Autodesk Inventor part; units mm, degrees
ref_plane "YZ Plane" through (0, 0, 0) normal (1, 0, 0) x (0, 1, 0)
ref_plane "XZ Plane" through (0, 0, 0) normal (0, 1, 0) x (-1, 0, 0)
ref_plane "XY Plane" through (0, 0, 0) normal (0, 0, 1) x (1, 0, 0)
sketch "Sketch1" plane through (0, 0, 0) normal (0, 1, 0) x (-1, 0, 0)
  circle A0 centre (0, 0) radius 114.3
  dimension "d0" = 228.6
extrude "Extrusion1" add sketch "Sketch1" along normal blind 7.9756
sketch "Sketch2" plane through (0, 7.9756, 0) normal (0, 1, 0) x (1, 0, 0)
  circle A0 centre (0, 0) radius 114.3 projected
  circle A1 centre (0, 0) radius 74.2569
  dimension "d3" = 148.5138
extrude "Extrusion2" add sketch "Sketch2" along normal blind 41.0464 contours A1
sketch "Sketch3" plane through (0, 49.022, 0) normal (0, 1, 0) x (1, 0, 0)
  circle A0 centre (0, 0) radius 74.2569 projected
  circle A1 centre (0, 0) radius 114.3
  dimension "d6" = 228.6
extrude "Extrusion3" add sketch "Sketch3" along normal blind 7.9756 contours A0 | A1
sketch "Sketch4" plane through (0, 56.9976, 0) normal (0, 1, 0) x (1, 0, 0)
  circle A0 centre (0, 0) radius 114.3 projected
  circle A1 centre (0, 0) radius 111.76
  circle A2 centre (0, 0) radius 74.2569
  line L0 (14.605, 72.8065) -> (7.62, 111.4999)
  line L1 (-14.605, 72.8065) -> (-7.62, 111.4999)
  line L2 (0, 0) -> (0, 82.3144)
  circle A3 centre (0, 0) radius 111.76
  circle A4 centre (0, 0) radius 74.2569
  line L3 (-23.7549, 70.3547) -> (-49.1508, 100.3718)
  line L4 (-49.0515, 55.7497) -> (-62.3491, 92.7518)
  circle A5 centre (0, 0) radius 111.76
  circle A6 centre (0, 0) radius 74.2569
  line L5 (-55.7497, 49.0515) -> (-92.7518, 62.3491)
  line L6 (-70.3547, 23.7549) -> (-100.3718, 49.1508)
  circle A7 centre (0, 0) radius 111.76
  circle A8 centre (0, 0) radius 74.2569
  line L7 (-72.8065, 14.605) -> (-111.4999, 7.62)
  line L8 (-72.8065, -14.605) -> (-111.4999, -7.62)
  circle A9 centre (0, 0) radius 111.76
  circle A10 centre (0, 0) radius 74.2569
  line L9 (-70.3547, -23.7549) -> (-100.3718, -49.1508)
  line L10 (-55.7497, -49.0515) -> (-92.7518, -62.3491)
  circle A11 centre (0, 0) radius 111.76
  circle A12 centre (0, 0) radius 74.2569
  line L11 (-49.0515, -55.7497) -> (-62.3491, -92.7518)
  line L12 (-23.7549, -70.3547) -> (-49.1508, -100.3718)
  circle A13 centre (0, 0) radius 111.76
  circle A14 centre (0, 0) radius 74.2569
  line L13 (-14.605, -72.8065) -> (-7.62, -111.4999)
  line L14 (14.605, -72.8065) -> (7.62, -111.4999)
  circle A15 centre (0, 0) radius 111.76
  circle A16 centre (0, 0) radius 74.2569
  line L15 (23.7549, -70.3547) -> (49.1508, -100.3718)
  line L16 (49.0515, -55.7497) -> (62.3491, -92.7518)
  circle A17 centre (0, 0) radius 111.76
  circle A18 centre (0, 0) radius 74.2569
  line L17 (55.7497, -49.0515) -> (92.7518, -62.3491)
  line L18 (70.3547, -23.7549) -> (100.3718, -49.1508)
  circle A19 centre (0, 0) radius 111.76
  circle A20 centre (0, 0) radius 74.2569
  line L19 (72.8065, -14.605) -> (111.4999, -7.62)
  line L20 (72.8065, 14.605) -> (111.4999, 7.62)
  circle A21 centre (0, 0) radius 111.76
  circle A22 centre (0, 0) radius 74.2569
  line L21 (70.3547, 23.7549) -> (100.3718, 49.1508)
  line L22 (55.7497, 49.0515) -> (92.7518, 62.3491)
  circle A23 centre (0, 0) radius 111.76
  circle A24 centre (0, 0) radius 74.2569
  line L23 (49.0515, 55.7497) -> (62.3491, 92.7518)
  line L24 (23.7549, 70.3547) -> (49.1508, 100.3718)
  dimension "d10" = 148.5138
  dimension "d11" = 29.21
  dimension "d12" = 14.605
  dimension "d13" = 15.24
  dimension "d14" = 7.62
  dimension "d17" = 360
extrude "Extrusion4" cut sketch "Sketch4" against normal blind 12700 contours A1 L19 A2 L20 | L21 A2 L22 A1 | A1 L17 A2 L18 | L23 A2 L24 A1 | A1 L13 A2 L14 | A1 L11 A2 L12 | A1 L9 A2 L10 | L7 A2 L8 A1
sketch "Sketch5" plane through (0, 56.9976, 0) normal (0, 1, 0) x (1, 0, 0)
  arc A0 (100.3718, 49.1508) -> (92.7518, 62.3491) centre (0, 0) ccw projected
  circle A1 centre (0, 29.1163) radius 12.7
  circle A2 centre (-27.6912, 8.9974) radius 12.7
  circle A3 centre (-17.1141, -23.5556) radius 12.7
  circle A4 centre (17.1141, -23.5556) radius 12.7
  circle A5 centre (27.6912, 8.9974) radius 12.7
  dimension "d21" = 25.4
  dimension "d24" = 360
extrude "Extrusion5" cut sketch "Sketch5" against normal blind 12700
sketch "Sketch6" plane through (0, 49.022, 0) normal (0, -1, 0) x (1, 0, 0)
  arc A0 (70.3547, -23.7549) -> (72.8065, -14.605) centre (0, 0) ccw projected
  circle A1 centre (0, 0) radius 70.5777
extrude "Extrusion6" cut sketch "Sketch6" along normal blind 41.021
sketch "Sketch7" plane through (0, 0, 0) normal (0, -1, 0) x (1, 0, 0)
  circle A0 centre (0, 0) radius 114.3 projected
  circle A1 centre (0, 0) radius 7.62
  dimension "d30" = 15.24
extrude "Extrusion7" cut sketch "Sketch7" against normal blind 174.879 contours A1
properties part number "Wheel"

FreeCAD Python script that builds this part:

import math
import FreeCAD as App
import Part
import Sketcher

V = App.Vector
Q = App.Units.Quantity

doc = App.newDocument("Part")
body = doc.addObject("PartDesign::Body", "Body")

sketch1 = body.newObject("Sketcher::SketchObject", "Sketch")
sketch1.AttachmentSupport = (doc.getObject("XZ_Plane"), [""])
sketch1.MapMode = "FlatFace"
sketch1.addGeometry(Part.Circle(V(0, 0, 0), V(0, 0, 1), 114), False)
sketch1.addConstraint([
    Sketcher.Constraint("Coincident", 0, 3, -1, 1),
    Sketcher.Constraint("Diameter", 0, Q("9 in")),
])
pad1 = body.newObject("PartDesign::Pad", "Pad")
pad1.Profile = sketch1
pad1.Length = Q("0.314 in")
pad1.Reversed = True

sketch2 = body.newObject("Sketcher::SketchObject", "Sketch001")
sketch2.AttachmentSupport = (doc.getObject("XZ_Plane"), [""])
sketch2.MapMode = "FlatFace"
sketch2.AttachmentOffset = App.Placement(V(0, 0, -0.314 * 25.4), App.Rotation())
sketch2.addGeometry(Part.Circle(V(0, 0, 0), V(0, 0, 1), 74), False)
sketch2.addConstraint([
    Sketcher.Constraint("Coincident", 0, 3, -1, 1),
    Sketcher.Constraint("Diameter", 0, Q("5.847 in")),
])
pad2 = body.newObject("PartDesign::Pad", "Pad001")
pad2.Profile = sketch2
pad2.Length = Q("1.616 in")
pad2.Reversed = True

sketch3 = body.newObject("Sketcher::SketchObject", "Sketch002")
sketch3.AttachmentSupport = (doc.getObject("XZ_Plane"), [""])
sketch3.MapMode = "FlatFace"
sketch3.AttachmentOffset = App.Placement(V(0, 0, -1.93 * 25.4), App.Rotation())
sketch3.addGeometry(Part.Circle(V(0, 0, 0), V(0, 0, 1), 114), False)
sketch3.addConstraint([
    Sketcher.Constraint("Coincident", 0, 3, -1, 1),
    Sketcher.Constraint("Diameter", 0, Q("9 in")),
])
pad3 = body.newObject("PartDesign::Pad", "Pad002")
pad3.Profile = sketch3
pad3.Length = Q("0.314 in")
pad3.Reversed = True

sketch4 = body.newObject("Sketcher::SketchObject", "Sketch003")
sketch4.AttachmentSupport = (doc.getObject("XZ_Plane"), [""])
sketch4.MapMode = "FlatFace"
sketch4.AttachmentOffset = App.Placement(V(0, 0, -2.244 * 25.4), App.Rotation())
sketch4.addGeometry([
    Part.ArcOfCircle(Part.Circle(V(0, 0, 0), V(0, 0, 1), 112), math.radians(-3.91), math.radians(3.91)),
    Part.LineSegment(V(111, -8, 0), V(73, -15, 0)),
    Part.ArcOfCircle(Part.Circle(V(0, 0, 0), V(0, 0, 1), 74), math.radians(-11), math.radians(11)),
    Part.LineSegment(V(73, 15, 0), V(111, 8, 0)),
    Part.LineSegment(V(70, -24, 0), V(100, -49, 0)),
    Part.ArcOfCircle(Part.Circle(V(0, 0, 0), V(0, 0, 1), 112), math.radians(-33.91), math.radians(-26.09)),
    Part.LineSegment(V(93, -62, 0), V(56, -49, 0)),
    Part.ArcOfCircle(Part.Circle(V(0, 0, 0), V(0, 0, 1), 74), math.radians(-41), math.radians(-19)),
    Part.ArcOfCircle(Part.Circle(V(0, 0, 0), V(0, 0, 1), 112), math.radians(26.09), math.radians(33.91)),
    Part.LineSegment(V(100, 49, 0), V(70, 24, 0)),
    Part.ArcOfCircle(Part.Circle(V(0, 0, 0), V(0, 0, 1), 74), math.radians(19), math.radians(41)),
    Part.LineSegment(V(56, 49, 0), V(93, 62, 0)),
    Part.LineSegment(V(49, -56, 0), V(62, -93, 0)),
    Part.ArcOfCircle(Part.Circle(V(0, 0, 0), V(0, 0, 1), 112), math.radians(-63.91), math.radians(-56.09)),
    Part.LineSegment(V(49, -100, 0), V(24, -70, 0)),
    Part.ArcOfCircle(Part.Circle(V(0, 0, 0), V(0, 0, 1), 74), math.radians(-71), math.radians(-49)),
    Part.ArcOfCircle(Part.Circle(V(0, 0, 0), V(0, 0, 1), 112), math.radians(86.09), math.radians(93.91)),
    Part.LineSegment(V(8, 111, 0), V(15, 73, 0)),
    Part.ArcOfCircle(Part.Circle(V(0, 0, 0), V(0, 0, 1), 74), math.radians(79), math.radians(101)),
    Part.LineSegment(V(-15, 73, 0), V(-8, 111, 0)),
    Part.ArcOfCircle(Part.Circle(V(0, 0, 0), V(0, 0, 1), 112), math.radians(116.09), math.radians(123.91)),
    Part.LineSegment(V(-49, 100, 0), V(-24, 70, 0)),
    Part.ArcOfCircle(Part.Circle(V(0, 0, 0), V(0, 0, 1), 74), math.radians(109), math.radians(131)),
    Part.LineSegment(V(-49, 56, 0), V(-62, 93, 0)),
    Part.ArcOfCircle(Part.Circle(V(0, 0, 0), V(0, 0, 1), 112), math.radians(146.09), math.radians(153.91)),
    Part.LineSegment(V(-93, 62, 0), V(-56, 49, 0)),
    Part.ArcOfCircle(Part.Circle(V(0, 0, 0), V(0, 0, 1), 74), math.radians(139), math.radians(161)),
    Part.LineSegment(V(-70, 24, 0), V(-100, 49, 0)),
    Part.LineSegment(V(-73, -15, 0), V(-111, -8, 0)),
    Part.ArcOfCircle(Part.Circle(V(0, 0, 0), V(0, 0, 1), 112), math.radians(176.09), math.radians(183.91)),
    Part.LineSegment(V(-111, 8, 0), V(-73, 15, 0)),
    Part.ArcOfCircle(Part.Circle(V(0, 0, 0), V(0, 0, 1), 74), math.radians(169), math.radians(191)),
], False)
sketch4.addConstraint([
    Sketcher.Constraint("Coincident", 0, 1, 1, 1),
    Sketcher.Constraint("Coincident", 1, 2, 2, 1),
    Sketcher.Constraint("Coincident", 2, 2, 3, 1),
    Sketcher.Constraint("Coincident", 3, 2, 0, 2),
    Sketcher.Constraint("Coincident", 4, 2, 5, 2),
    Sketcher.Constraint("Coincident", 5, 1, 6, 1),
    Sketcher.Constraint("Coincident", 6, 2, 7, 1),
    Sketcher.Constraint("Coincident", 7, 2, 4, 1),
    Sketcher.Constraint("Coincident", 8, 1, 9, 1),
    Sketcher.Constraint("Coincident", 9, 2, 10, 1),
    Sketcher.Constraint("Coincident", 10, 2, 11, 1),
    Sketcher.Constraint("Coincident", 11, 2, 8, 2),
    Sketcher.Constraint("Coincident", 12, 2, 13, 2),
    Sketcher.Constraint("Coincident", 13, 1, 14, 1),
    Sketcher.Constraint("Coincident", 14, 2, 15, 1),
    Sketcher.Constraint("Coincident", 15, 2, 12, 1),
    Sketcher.Constraint("Coincident", 16, 1, 17, 1),
    Sketcher.Constraint("Coincident", 17, 2, 18, 1),
    Sketcher.Constraint("Coincident", 18, 2, 19, 1),
    Sketcher.Constraint("Coincident", 19, 2, 16, 2),
    Sketcher.Constraint("Coincident", 20, 1, 21, 1),
    Sketcher.Constraint("Coincident", 21, 2, 22, 1),
    Sketcher.Constraint("Coincident", 22, 2, 23, 1),
    Sketcher.Constraint("Coincident", 23, 2, 20, 2),
    Sketcher.Constraint("Coincident", 24, 1, 25, 1),
    Sketcher.Constraint("Coincident", 25, 2, 26, 1),
    Sketcher.Constraint("Coincident", 26, 2, 27, 1),
    Sketcher.Constraint("Coincident", 27, 2, 24, 2),
    Sketcher.Constraint("Coincident", 28, 2, 29, 2),
    Sketcher.Constraint("Coincident", 29, 1, 30, 1),
    Sketcher.Constraint("Coincident", 30, 2, 31, 1),
    Sketcher.Constraint("Coincident", 31, 2, 28, 1),
    Sketcher.Constraint("Coincident", 0, 3, -1, 1),
    Sketcher.Constraint("Coincident", 2, 3, -1, 1),
    Sketcher.Constraint("Coincident", 5, 3, -1, 1),
    Sketcher.Constraint("Coincident", 7, 3, -1, 1),
    Sketcher.Constraint("Coincident", 8, 3, -1, 1),
    Sketcher.Constraint("Coincident", 10, 3, -1, 1),
    Sketcher.Constraint("Coincident", 13, 3, -1, 1),
    Sketcher.Constraint("Coincident", 15, 3, -1, 1),
    Sketcher.Constraint("Coincident", 16, 3, -1, 1),
    Sketcher.Constraint("Coincident", 18, 3, -1, 1),
    Sketcher.Constraint("Coincident", 20, 3, -1, 1),
    Sketcher.Constraint("Coincident", 22, 3, -1, 1),
    Sketcher.Constraint("Coincident", 24, 3, -1, 1),
    Sketcher.Constraint("Coincident", 26, 3, -1, 1),
    Sketcher.Constraint("Coincident", 29, 3, -1, 1),
    Sketcher.Constraint("Coincident", 31, 3, -1, 1),
    Sketcher.Constraint("Equal", 0, 5),
    Sketcher.Constraint("Equal", 2, 7),
    Sketcher.Constraint("Equal", 5, 8),
    Sketcher.Constraint("Equal", 7, 10),
    Sketcher.Constraint("Equal", 8, 13),
    Sketcher.Constraint("Equal", 10, 15),
    Sketcher.Constraint("Equal", 13, 16),
    Sketcher.Constraint("Equal", 15, 18),
    Sketcher.Constraint("Equal", 16, 20),
    Sketcher.Constraint("Equal", 18, 22),
    Sketcher.Constraint("Equal", 20, 24),
    Sketcher.Constraint("Equal", 22, 26),
    Sketcher.Constraint("Equal", 24, 29),
    Sketcher.Constraint("Equal", 26, 31),
    Sketcher.Constraint("Perpendicular", 11, 12),
    Sketcher.Constraint("Perpendicular", 9, 14),
    Sketcher.Constraint("Perpendicular", 1, 17),
    Sketcher.Constraint("Perpendicular", 3, 19),
    Sketcher.Constraint("Parallel", 14, 21),
    Sketcher.Constraint("Parallel", 12, 23),
    Sketcher.Constraint("Parallel", 6, 25),
    Sketcher.Constraint("Parallel", 4, 27),
    Sketcher.Constraint("Perpendicular", 19, 28),
    Sketcher.Constraint("Perpendicular", 17, 30),
    Sketcher.Constraint("Horizontal", 17, 2, 18, 2),
    Sketcher.Constraint("Horizontal", 16, 1, 19, 2),
    Sketcher.Constraint("Horizontal", 11, 2, 24, 1),
    Sketcher.Constraint("Horizontal", 10, 2, 25, 2),
    Sketcher.Constraint("Horizontal", 9, 2, 26, 2),
    Sketcher.Constraint("Horizontal", 8, 1, 27, 2),
    Sketcher.Constraint("Horizontal", 0, 1, 28, 2),
    Sketcher.Constraint("Horizontal", 3, 2, 29, 1),
    Sketcher.Constraint("Vertical", 1, 2, 2, 2),
    Sketcher.Constraint("Vertical", 4, 2, 8, 1),
    Sketcher.Constraint("Vertical", 6, 2, 10, 2),
    Sketcher.Constraint("Equal", 3, 4),
    Sketcher.Constraint("Equal", 4, 6),
    Sketcher.Constraint("Equal", 11, 12),
    Sketcher.Constraint("Equal", 12, 14),
    Sketcher.Constraint("Equal", 14, 17),
    Sketcher.Constraint("Equal", 19, 21),
    Sketcher.Constraint("Equal", 21, 23),
    Sketcher.Constraint("DistanceY", 0, 1, -1, 1, Q("0.3 in")),
    Sketcher.Constraint("Radius", 0, Q("4.4 in")),
    Sketcher.Constraint("Radius", 2, Q("2.9235 in")),
    Sketcher.Constraint("DistanceX", 5, 1, 4, 2, Q("0.3 in")),
    Sketcher.Constraint("DistanceY", 1, 2, 2, 2, Q("1.15 in")),
    Sketcher.Constraint("DistanceY", 5, 1, -1, 1, Q("2.4547 in")),
])
pocket1 = body.newObject("PartDesign::Pocket", "Pocket")
pocket1.Profile = sketch4
pocket1.Length = Q("500 in")
pocket1.Reversed = True

sketch5 = body.newObject("Sketcher::SketchObject", "Sketch004")
sketch5.AttachmentSupport = (doc.getObject("XZ_Plane"), [""])
sketch5.MapMode = "FlatFace"
sketch5.AttachmentOffset = App.Placement(V(0, 0, -2.244 * 25.4), App.Rotation())
sketch5.addGeometry([
    Part.Circle(V(0, -29, 0), V(0, 0, 1), 13),
    Part.Circle(V(-28, -9, 0), V(0, 0, 1), 13),
    Part.Circle(V(-17, 24, 0), V(0, 0, 1), 13),
    Part.Circle(V(17, 24, 0), V(0, 0, 1), 13),
    Part.Circle(V(28, -9, 0), V(0, 0, 1), 13),
], False)
sketch5.addConstraint([
    Sketcher.Constraint("Equal", 0, 1),
    Sketcher.Constraint("Equal", 1, 2),
    Sketcher.Constraint("Equal", 2, 3),
    Sketcher.Constraint("Equal", 3, 4),
    Sketcher.Constraint("Symmetric", 2, 3, 3, 3, -2),
    Sketcher.Constraint("Symmetric", 1, 3, 4, 3, -2),
    Sketcher.Constraint("PointOnObject", 0, 3, -2),
    Sketcher.Constraint("Diameter", 0, Q("1 in")),
    Sketcher.Constraint("DistanceX", 1, 3, 3, 3, Q("1.764 in")),
    Sketcher.Constraint("DistanceY", 0, 3, -1, 1, Q("1.1463 in")),
    Sketcher.Constraint("DistanceX", 1, 3, -1, 1, Q("1.0902 in")),
    Sketcher.Constraint("DistanceY", 0, 3, 2, 3, Q("2.0737 in")),
    Sketcher.Constraint("DistanceY", 1, 3, -1, 1, Q("8.9974 mm")),
])
pocket2 = body.newObject("PartDesign::Pocket", "Pocket001")
pocket2.Profile = sketch5
pocket2.Length = Q("500 in")
pocket2.Reversed = True

sketch6 = body.newObject("Sketcher::SketchObject", "Sketch005")
sketch6.AttachmentSupport = (doc.getObject("XZ_Plane"), [""])
sketch6.MapMode = "FlatFace"
sketch6.AttachmentOffset = App.Placement(V(0, 0, -1.93 * 25.4), App.Rotation())
sketch6.addGeometry(Part.Circle(V(0, 0, 0), V(0, 0, 1), 71), False)
sketch6.addConstraint([
    Sketcher.Constraint("Coincident", 0, 3, -1, 1),
    Sketcher.Constraint("Diameter", 0, Q("5.5573 in")),
])
pocket3 = body.newObject("PartDesign::Pocket", "Pocket002")
pocket3.Profile = sketch6
pocket3.Length = Q("1.615 in")
pocket3.Reversed = True

sketch7 = body.newObject("Sketcher::SketchObject", "Sketch006")
sketch7.AttachmentSupport = (doc.getObject("XZ_Plane"), [""])
sketch7.MapMode = "FlatFace"
sketch7.addGeometry(Part.Circle(V(0, 0, 0), V(0, 0, 1), 8), False)
sketch7.addConstraint([
    Sketcher.Constraint("Coincident", 0, 3, -1, 1),
    Sketcher.Constraint("Diameter", 0, Q("0.6 in")),
])
pocket4 = body.newObject("PartDesign::Pocket", "Pocket003")
pocket4.Profile = sketch7
pocket4.Length = Q("6.885 in")

doc.recompute()
